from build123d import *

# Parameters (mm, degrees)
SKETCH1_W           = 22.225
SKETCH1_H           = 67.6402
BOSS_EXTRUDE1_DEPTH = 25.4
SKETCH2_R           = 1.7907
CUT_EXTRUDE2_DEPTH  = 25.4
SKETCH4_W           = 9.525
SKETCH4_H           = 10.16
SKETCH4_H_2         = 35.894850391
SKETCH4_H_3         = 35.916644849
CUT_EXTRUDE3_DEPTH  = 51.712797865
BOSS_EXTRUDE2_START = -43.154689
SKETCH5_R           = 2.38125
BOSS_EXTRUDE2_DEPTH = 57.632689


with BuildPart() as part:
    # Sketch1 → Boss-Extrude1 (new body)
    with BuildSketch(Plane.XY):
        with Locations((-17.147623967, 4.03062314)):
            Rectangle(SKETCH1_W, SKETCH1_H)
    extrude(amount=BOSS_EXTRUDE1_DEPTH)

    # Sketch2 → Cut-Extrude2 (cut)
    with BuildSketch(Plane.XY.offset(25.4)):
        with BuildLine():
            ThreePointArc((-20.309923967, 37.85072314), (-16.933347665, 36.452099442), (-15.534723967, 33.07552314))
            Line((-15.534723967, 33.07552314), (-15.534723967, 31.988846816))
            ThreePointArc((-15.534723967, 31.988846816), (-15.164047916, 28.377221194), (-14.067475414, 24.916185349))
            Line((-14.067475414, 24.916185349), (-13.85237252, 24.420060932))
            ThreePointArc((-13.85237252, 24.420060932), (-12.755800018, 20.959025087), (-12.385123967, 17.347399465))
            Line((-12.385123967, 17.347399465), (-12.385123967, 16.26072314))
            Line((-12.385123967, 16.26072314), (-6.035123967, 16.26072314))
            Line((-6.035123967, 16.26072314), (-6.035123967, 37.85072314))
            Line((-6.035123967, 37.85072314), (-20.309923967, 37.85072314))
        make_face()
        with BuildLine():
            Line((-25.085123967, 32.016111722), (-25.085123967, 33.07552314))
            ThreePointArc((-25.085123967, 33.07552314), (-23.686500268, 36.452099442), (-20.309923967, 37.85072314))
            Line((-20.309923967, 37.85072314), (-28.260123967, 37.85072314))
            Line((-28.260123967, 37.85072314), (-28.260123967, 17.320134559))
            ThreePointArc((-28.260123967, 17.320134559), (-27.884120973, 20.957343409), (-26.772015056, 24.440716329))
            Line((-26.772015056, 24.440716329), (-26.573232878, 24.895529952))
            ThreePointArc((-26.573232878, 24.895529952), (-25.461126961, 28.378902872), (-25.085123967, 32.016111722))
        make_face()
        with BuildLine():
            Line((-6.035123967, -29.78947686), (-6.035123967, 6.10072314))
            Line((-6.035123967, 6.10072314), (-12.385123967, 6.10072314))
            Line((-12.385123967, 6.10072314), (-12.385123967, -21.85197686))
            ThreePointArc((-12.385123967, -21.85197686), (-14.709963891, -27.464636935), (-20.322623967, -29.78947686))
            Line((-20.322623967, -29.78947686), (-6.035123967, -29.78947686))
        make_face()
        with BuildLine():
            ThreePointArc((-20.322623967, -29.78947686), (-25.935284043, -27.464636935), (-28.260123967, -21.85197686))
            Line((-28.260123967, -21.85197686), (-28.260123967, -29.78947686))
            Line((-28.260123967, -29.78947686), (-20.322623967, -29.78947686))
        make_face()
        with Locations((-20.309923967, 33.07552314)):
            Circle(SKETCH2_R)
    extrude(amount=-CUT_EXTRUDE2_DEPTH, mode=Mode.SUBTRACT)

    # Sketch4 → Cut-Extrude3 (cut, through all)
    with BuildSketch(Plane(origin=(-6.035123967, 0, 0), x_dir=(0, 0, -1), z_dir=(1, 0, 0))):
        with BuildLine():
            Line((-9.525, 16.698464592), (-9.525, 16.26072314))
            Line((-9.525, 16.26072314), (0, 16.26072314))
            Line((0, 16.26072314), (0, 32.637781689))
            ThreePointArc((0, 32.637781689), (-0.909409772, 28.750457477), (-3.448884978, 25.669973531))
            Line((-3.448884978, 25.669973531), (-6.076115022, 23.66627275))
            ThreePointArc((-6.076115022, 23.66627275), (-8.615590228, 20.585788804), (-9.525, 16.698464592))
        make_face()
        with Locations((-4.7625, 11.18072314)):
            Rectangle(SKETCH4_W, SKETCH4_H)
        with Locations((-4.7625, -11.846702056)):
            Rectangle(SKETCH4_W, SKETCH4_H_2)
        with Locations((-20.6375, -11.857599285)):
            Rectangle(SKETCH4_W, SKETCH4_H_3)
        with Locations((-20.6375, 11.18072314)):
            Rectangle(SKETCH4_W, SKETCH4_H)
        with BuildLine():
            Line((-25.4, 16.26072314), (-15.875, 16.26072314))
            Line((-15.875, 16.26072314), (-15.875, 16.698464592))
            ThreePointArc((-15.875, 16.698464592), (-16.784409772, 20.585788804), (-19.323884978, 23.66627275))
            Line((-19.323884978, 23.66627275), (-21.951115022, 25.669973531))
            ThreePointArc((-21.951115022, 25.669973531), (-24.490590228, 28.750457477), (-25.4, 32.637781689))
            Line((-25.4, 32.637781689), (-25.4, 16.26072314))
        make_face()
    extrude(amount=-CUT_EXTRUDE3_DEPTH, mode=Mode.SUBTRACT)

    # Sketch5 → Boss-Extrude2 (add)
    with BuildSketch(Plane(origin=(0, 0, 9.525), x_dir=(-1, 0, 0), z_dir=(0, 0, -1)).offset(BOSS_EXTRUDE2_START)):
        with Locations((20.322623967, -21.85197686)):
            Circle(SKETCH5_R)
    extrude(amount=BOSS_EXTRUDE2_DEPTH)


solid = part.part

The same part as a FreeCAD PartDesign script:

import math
import FreeCAD as App
import Part
import Sketcher
Q = App.Units.Quantity

doc = App.newDocument("Part")
params = doc.addObject("Spreadsheet::Sheet", "Params")
for row, (alias, value) in enumerate([
    ("sketch1_width", "0.875 in"),
    ("sketch1_height", "2.663 in"),
    ("pad1_length", "1 in"),
    ("sketch2_radius", "0.7 in"),
    ("sketch2_diameter", "0.141 in"),
    ("sketch2_radius2", "0.188 in"),
    ("sketch2_radius3", "0.3125 in"),
    ("sketch2_width", "0.25 in"),
    ("pocket1_length", "1 in"),
    ("sketch3_radius", "0.345 in"),
    ("sketch3_height", "0.375 in"),
    ("sketch4_diameter", "0.1875 in"),
    ("pad2_length", "57.632689 mm"),
], start=1):
    params.set(f"A{row}", alias)
    params.set(f"B{row}", "=" + value)
    params.setAlias(f"B{row}", alias)

body = doc.addObject("PartDesign::Body", "Body")

sketch1 = body.newObject("Sketcher::SketchObject", "Sketch")
sketch1.AttachmentSupport = (doc.getObject("XY_Plane"), [""])
sketch1.MapMode = "FlatFace"
sketch1.addGeometry([
    Part.LineSegment(App.Vector(-28, 38, 0), App.Vector(-28, -30, 0)),
    Part.LineSegment(App.Vector(-28, -30, 0), App.Vector(-6, -30, 0)),
    Part.LineSegment(App.Vector(-6, -30, 0), App.Vector(-6, 38, 0)),
    Part.LineSegment(App.Vector(-6, 38, 0), App.Vector(-28, 38, 0)),
], False)
sketch1.addConstraint([
    Sketcher.Constraint("Coincident", 0, 2, 1, 1),
    Sketcher.Constraint("Coincident", 1, 2, 2, 1),
    Sketcher.Constraint("Coincident", 2, 2, 3, 1),
    Sketcher.Constraint("Coincident", 3, 2, 0, 1),
    Sketcher.Constraint("Vertical", 0),
    Sketcher.Constraint("Horizontal", 1),
    Sketcher.Constraint("Vertical", 2),
    Sketcher.Constraint("Horizontal", 3),
    Sketcher.Constraint("DistanceX", 1, 1, 1, 2, Q("0.875 in")),
    Sketcher.Constraint("DistanceY", 0, 2, 0, 1, Q("2.663 in")),
    Sketcher.Constraint("DistanceX", 0, 2, -1, 1, 28.260124),
    Sketcher.Constraint("DistanceY", 0, 2, -1, 1, 29.789477),
])
sketch1.setExpression("Constraints[8]", "Params.sketch1_width")
sketch1.setExpression("Constraints[9]", "Params.sketch1_height")
pad1 = body.newObject("PartDesign::Pad", "Pad")
pad1.Profile = sketch1
pad1.setExpression("Length", "Params.pad1_length")

sketch2 = body.newObject("Sketcher::SketchObject", "Sketch001")
sketch2.AttachmentSupport = (doc.getObject("XY_Plane"), [""])
sketch2.MapMode = "FlatFace"
sketch2.AttachmentOffset = App.Placement(App.Vector(0, 0, 1 * 25.4), App.Rotation())
sketch2.addGeometry([
    Part.ArcOfCircle(Part.Circle(App.Vector(-20.31, 33.08, 0), App.Vector(0, 0, 1), 4.78), math.radians(0), math.radians(90)),
    Part.LineSegment(App.Vector(-15.53, 33.08, 0), App.Vector(-15.53, 31.99, 0)),
    Part.ArcOfCircle(Part.Circle(App.Vector(2.25, 31.99, 0), App.Vector(0, 0, 1), 17.78), math.radians(-180), math.radians(-157)),
    Part.LineSegment(App.Vector(-14.07, 24.92, 0), App.Vector(-13.85, 24.42, 0)),
    Part.ArcOfCircle(Part.Circle(App.Vector(-30.17, 17.35, 0), App.Vector(0, 0, 1), 17.78), math.radians(0), math.radians(23)),
    Part.LineSegment(App.Vector(-12.39, 17.35, 0), App.Vector(-12.39, 16.26, 0)),
    Part.LineSegment(App.Vector(-12.39, 16.26, 0), App.Vector(-6.04, 16.26, 0)),
    Part.LineSegment(App.Vector(-6.04, 16.26, 0), App.Vector(-6.04, 37.85, 0)),
    Part.LineSegment(App.Vector(-6.04, 37.85, 0), App.Vector(-20.31, 37.85, 0)),
    Part.LineSegment(App.Vector(-25.09, 32.02, 0), App.Vector(-25.09, 33.08, 0)),
    Part.ArcOfCircle(Part.Circle(App.Vector(-20.31, 33.08, 0), App.Vector(0, 0, 1), 4.78), math.radians(90), math.radians(180)),
    Part.LineSegment(App.Vector(-20.31, 37.85, 0), App.Vector(-28.26, 37.85, 0)),
    Part.LineSegment(App.Vector(-28.26, 37.85, 0), App.Vector(-28.26, 17.32, 0)),
    Part.ArcOfCircle(Part.Circle(App.Vector(-10.48, 17.32, 0), App.Vector(0, 0, 1), 17.78), math.radians(156), math.radians(180)),
    Part.LineSegment(App.Vector(-26.77, 24.44, 0), App.Vector(-26.57, 24.9, 0)),
    Part.ArcOfCircle(Part.Circle(App.Vector(-42.87, 32.02, 0), App.Vector(0, 0, 1), 17.78), math.radians(-24), math.radians(0)),
    Part.LineSegment(App.Vector(-6.04, -29.79, 0), App.Vector(-6.04, 6.1, 0)),
    Part.LineSegment(App.Vector(-6.04, 6.1, 0), App.Vector(-12.39, 6.1, 0)),
    Part.LineSegment(App.Vector(-12.39, 6.1, 0), App.Vector(-12.39, -21.85, 0)),
    Part.ArcOfCircle(Part.Circle(App.Vector(-20.32, -21.85, 0), App.Vector(0, 0, 1), 7.94), math.radians(-90), math.radians(0)),
    Part.LineSegment(App.Vector(-20.32, -29.79, 0), App.Vector(-6.04, -29.79, 0)),
    Part.ArcOfCircle(Part.Circle(App.Vector(-20.32, -21.85, 0), App.Vector(0, 0, 1), 7.94), math.radians(-180), math.radians(-90)),
    Part.LineSegment(App.Vector(-28.26, -21.85, 0), App.Vector(-28.26, -29.79, 0)),
    Part.LineSegment(App.Vector(-28.26, -29.79, 0), App.Vector(-20.32, -29.79, 0)),
    Part.Circle(App.Vector(-20.31, 33.08, 0), App.Vector(0, 0, 1), 1.79),
], False)
sketch2.addConstraint([
    Sketcher.Constraint("Tangent", 0, 1, 1, 1),
    Sketcher.Constraint("Tangent", 1, 2, 2, 1),
    Sketcher.Constraint("Tangent", 2, 2, 3, 1),
    Sketcher.Constraint("Tangent", 3, 2, 4, 2),
    Sketcher.Constraint("Tangent", 4, 1, 5, 1),
    Sketcher.Constraint("Coincident", 5, 2, 6, 1),
    Sketcher.Constraint("Coincident", 6, 2, 7, 1),
    Sketcher.Constraint("Coincident", 7, 2, 8, 1),
    Sketcher.Constraint("Tangent", 8, 2, 0, 2),
    Sketcher.Constraint("Tangent", 9, 2, 10, 2),
    Sketcher.Constraint("Tangent", 10, 1, 11, 1),
    Sketcher.Constraint("Coincident", 11, 2, 12, 1),
    Sketcher.Constraint("Tangent", 12, 2, 13, 2),
    Sketcher.Constraint("Tangent", 13, 1, 14, 1),
    Sketcher.Constraint("Tangent", 14, 2, 15, 1),
    Sketcher.Constraint("Tangent", 15, 2, 9, 1),
    Sketcher.Constraint("Coincident", 16, 2, 17, 1),
    Sketcher.Constraint("Coincident", 17, 2, 18, 1),
    Sketcher.Constraint("Tangent", 18, 2, 19, 2),
    Sketcher.Constraint("Tangent", 19, 1, 20, 1),
    Sketcher.Constraint("Coincident", 20, 2, 16, 1),
    Sketcher.Constraint("Tangent", 21, 1, 22, 1),
    Sketcher.Constraint("Coincident", 22, 2, 23, 1),
    Sketcher.Constraint("Tangent", 23, 2, 21, 2),
    Sketcher.Constraint("Vertical", 1),
    Sketcher.Constraint("Vertical", 5),
    Sketcher.Constraint("Horizontal", 6),
    Sketcher.Constraint("Vertical", 7),
    Sketcher.Constraint("Horizontal", 8),
    Sketcher.Constraint("Vertical", 9),
    Sketcher.Constraint("Horizontal", 11),
    Sketcher.Constraint("Vertical", 12),
    Sketcher.Constraint("Vertical", 16),
    Sketcher.Constraint("Horizontal", 17),
    Sketcher.Constraint("Vertical", 18),
    Sketcher.Constraint("Horizontal", 20),
    Sketcher.Constraint("Vertical", 22),
    Sketcher.Constraint("Horizontal", 23),
    Sketcher.Constraint("Coincident", 10, 3, 0, 3),
    Sketcher.Constraint("Coincident", 21, 3, 19, 3),
    Sketcher.Constraint("Coincident", 24, 3, 0, 3),
    Sketcher.Constraint("Equal", 2, 4),
    Sketcher.Constraint("Equal", 0, 10),
    Sketcher.Constraint("Equal", 4, 13),
    Sketcher.Constraint("Equal", 13, 15),
    Sketcher.Constraint("Equal", 19, 21),
    Sketcher.Constraint("Vertical", 7, 2, 16, 2),
    Sketcher.Constraint("Vertical", 5, 2, 17, 2),
    Sketcher.Constraint("Vertical", 12, 2, 21, 1),
    Sketcher.Constraint("Equal", 1, 5),
    Sketcher.Constraint("Radius", 2, Q("0.7 in")),
    Sketcher.Constraint("Diameter", 24, Q("0.141 in")),
    Sketcher.Constraint("Radius", 0, Q("0.188 in")),
    Sketcher.Constraint("Radius", 19, Q("0.3125 in")),
    Sketcher.Constraint("DistanceX", 6, 1, 6, 2, Q("0.25 in")),
    Sketcher.Constraint("DistanceY", 7, 1, 7, 2, Q("0.85 in")),
    Sketcher.Constraint("DistanceX", 15, 3, 4, 3, Q("0.5 in")),
    Sketcher.Constraint("DistanceY", 16, 2, 6, 2, Q("0.4 in")),
    Sketcher.Constraint("DistanceY", 16, 1, 16, 2, Q("1.413 in")),
    Sketcher.Constraint("DistanceY", 9, 1, 9, 2, 1.059411),
    Sketcher.Constraint("DistanceY", 12, 2, 12, 1, 20.530589),
    Sketcher.Constraint("DistanceY", -1, 1, 4, 3, 17.347399),
    Sketcher.Constraint("Distance", 3, 0.540748),
    Sketcher.Constraint("DistanceX", 0, 3, -1, 1, 20.309924),
])
sketch2.setExpression("Constraints[50]", "Params.sketch2_radius")
sketch2.setExpression("Constraints[51]", "Params.sketch2_diameter")
sketch2.setExpression("Constraints[52]", "Params.sketch2_radius2")
sketch2.setExpression("Constraints[53]", "Params.sketch2_radius3")
sketch2.setExpression("Constraints[54]", "Params.sketch2_width")
pocket1 = body.newObject("PartDesign::Pocket", "Pocket")
pocket1.Profile = sketch2
pocket1.setExpression("Length", "Params.pocket1_length")

sketch3 = body.newObject("Sketcher::SketchObject", "Sketch002")
sketch3.AttachmentSupport = (doc.getObject("YZ_Plane"), [""])
sketch3.MapMode = "FlatFace"
sketch3.AttachmentOffset = App.Placement(App.Vector(0, 0, -6.035124), App.Rotation())
sketch3.addGeometry([
    Part.LineSegment(App.Vector(16.7, 9.5, 0), App.Vector(-29.8, 9.5, 0)),
    Part.LineSegment(App.Vector(-29.8, 9.5, 0), App.Vector(-29.8, 0, 0)),
    Part.LineSegment(App.Vector(-29.8, 0, 0), App.Vector(32.6, 0, 0)),
    Part.ArcOfCircle(Part.Circle(App.Vector(32.6, 8.8, 0), App.Vector(0, 0, 1), 8.8), math.radians(-143), math.radians(-90)),
    Part.LineSegment(App.Vector(25.7, 3.4, 0), App.Vector(23.7, 6.1, 0)),
    Part.ArcOfCircle(Part.Circle(App.Vector(16.7, 0.8, 0), App.Vector(0, 0, 1), 8.8), math.radians(37), math.radians(90)),
    Part.LineSegment(App.Vector(-29.8, 25.4, 0), App.Vector(-29.8, 15.9, 0)),
    Part.LineSegment(App.Vector(-29.8, 15.9, 0), App.Vector(16.7, 15.9, 0)),
    Part.ArcOfCircle(Part.Circle(App.Vector(16.7, 24.6, 0), App.Vector(0, 0, 1), 8.8), math.radians(-90), math.radians(-37)),
    Part.LineSegment(App.Vector(23.7, 19.3, 0), App.Vector(25.7, 22, 0)),
    Part.ArcOfCircle(Part.Circle(App.Vector(32.6, 16.6, 0), App.Vector(0, 0, 1), 8.8), math.radians(90), math.radians(143)),
    Part.LineSegment(App.Vector(32.6, 25.4, 0), App.Vector(-29.8, 25.4, 0)),
], False)
sketch3.addConstraint([
    Sketcher.Constraint("Coincident", 0, 2, 1, 1),
    Sketcher.Constraint("Coincident", 1, 2, 2, 1),
    Sketcher.Constraint("Tangent", 2, 2, 3, 2),
    Sketcher.Constraint("Tangent", 3, 1, 4, 1),
    Sketcher.Constraint("Tangent", 4, 2, 5, 1),
    Sketcher.Constraint("Tangent", 5, 2, 0, 1),
    Sketcher.Constraint("Coincident", 6, 2, 7, 1),
    Sketcher.Constraint("Tangent", 7, 2, 8, 1),
    Sketcher.Constraint("Tangent", 8, 2, 9, 1),
    Sketcher.Constraint("Tangent", 9, 2, 10, 2),
    Sketcher.Constraint("Tangent", 10, 1, 11, 1),
    Sketcher.Constraint("Coincident", 11, 2, 6, 1),
    Sketcher.Constraint("Horizontal", 0),
    Sketcher.Constraint("Vertical", 1),
    Sketcher.Constraint("Horizontal", 2),
    Sketcher.Constraint("Vertical", 6),
    Sketcher.Constraint("Horizontal", 7),
    Sketcher.Constraint("Horizontal", 11),
    Sketcher.Constraint("Equal", 3, 5),
    Sketcher.Constraint("Equal", 5, 8),
    Sketcher.Constraint("Equal", 8, 10),
    Sketcher.Constraint("PointOnObject", 1, 2, -1),
    Sketcher.Constraint("Vertical", 5, 3, 8, 3),
    Sketcher.Constraint("Vertical", 3, 3, 10, 3),
    Sketcher.Constraint("Vertical", 4, 2, 8, 2),
    Sketcher.Constraint("DistanceY", -1, 1, 10, 1, Q("1 in")),
    Sketcher.Constraint("Radius", 3, Q("0.345 in")),
    Sketcher.Constraint("DistanceY", 1, 2, 1, 1, Q("0.375 in")),
    Sketcher.Constraint("DistanceX", 0, 2, 0, 1, 46.492592),
    Sketcher.Constraint("DistanceX", 2, 1, 2, 2, 62.431909),
    Sketcher.Constraint("DistanceX", 7, 1, 7, 2, 46.514386),
    Sketcher.Constraint("DistanceX", -1, 1, 3, 3, 32.637782),
])
sketch3.setExpression("Constraints[26]", "Params.sketch3_radius")
sketch3.setExpression("Constraints[27]", "Params.sketch3_height")
pocket2 = body.newObject("PartDesign::Pocket", "Pocket001")
pocket2.Profile = sketch3
pocket2.Type = "ThroughAll"

sketch4 = body.newObject("Sketcher::SketchObject", "Sketch003")
sketch4.AttachmentSupport = (doc.getObject("XY_Plane"), [""])
sketch4.MapMode = "FlatFace"
sketch4.AttachmentOffset = App.Placement(App.Vector(0, 0, 52.679689), App.Rotation())
sketch4.addGeometry(Part.Circle(App.Vector(-20.3, -21.9, 0), App.Vector(0, 0, 1), 2.4), False)
sketch4.addConstraint([
    Sketcher.Constraint("Diameter", 0, Q("0.1875 in")),
    Sketcher.Constraint("DistanceX", 0, 3, -1, 1, 20.322624),
    Sketcher.Constraint("DistanceY", 0, 3, -1, 1, 21.851977),
])
sketch4.setExpression("Constraints[0]", "Params.sketch4_diameter")
pad2 = body.newObject("PartDesign::Pad", "Pad001")
pad2.Profile = sketch4
pad2.setExpression("Length", "Params.pad2_length")
pad2.Reversed = True

doc.recompute()
